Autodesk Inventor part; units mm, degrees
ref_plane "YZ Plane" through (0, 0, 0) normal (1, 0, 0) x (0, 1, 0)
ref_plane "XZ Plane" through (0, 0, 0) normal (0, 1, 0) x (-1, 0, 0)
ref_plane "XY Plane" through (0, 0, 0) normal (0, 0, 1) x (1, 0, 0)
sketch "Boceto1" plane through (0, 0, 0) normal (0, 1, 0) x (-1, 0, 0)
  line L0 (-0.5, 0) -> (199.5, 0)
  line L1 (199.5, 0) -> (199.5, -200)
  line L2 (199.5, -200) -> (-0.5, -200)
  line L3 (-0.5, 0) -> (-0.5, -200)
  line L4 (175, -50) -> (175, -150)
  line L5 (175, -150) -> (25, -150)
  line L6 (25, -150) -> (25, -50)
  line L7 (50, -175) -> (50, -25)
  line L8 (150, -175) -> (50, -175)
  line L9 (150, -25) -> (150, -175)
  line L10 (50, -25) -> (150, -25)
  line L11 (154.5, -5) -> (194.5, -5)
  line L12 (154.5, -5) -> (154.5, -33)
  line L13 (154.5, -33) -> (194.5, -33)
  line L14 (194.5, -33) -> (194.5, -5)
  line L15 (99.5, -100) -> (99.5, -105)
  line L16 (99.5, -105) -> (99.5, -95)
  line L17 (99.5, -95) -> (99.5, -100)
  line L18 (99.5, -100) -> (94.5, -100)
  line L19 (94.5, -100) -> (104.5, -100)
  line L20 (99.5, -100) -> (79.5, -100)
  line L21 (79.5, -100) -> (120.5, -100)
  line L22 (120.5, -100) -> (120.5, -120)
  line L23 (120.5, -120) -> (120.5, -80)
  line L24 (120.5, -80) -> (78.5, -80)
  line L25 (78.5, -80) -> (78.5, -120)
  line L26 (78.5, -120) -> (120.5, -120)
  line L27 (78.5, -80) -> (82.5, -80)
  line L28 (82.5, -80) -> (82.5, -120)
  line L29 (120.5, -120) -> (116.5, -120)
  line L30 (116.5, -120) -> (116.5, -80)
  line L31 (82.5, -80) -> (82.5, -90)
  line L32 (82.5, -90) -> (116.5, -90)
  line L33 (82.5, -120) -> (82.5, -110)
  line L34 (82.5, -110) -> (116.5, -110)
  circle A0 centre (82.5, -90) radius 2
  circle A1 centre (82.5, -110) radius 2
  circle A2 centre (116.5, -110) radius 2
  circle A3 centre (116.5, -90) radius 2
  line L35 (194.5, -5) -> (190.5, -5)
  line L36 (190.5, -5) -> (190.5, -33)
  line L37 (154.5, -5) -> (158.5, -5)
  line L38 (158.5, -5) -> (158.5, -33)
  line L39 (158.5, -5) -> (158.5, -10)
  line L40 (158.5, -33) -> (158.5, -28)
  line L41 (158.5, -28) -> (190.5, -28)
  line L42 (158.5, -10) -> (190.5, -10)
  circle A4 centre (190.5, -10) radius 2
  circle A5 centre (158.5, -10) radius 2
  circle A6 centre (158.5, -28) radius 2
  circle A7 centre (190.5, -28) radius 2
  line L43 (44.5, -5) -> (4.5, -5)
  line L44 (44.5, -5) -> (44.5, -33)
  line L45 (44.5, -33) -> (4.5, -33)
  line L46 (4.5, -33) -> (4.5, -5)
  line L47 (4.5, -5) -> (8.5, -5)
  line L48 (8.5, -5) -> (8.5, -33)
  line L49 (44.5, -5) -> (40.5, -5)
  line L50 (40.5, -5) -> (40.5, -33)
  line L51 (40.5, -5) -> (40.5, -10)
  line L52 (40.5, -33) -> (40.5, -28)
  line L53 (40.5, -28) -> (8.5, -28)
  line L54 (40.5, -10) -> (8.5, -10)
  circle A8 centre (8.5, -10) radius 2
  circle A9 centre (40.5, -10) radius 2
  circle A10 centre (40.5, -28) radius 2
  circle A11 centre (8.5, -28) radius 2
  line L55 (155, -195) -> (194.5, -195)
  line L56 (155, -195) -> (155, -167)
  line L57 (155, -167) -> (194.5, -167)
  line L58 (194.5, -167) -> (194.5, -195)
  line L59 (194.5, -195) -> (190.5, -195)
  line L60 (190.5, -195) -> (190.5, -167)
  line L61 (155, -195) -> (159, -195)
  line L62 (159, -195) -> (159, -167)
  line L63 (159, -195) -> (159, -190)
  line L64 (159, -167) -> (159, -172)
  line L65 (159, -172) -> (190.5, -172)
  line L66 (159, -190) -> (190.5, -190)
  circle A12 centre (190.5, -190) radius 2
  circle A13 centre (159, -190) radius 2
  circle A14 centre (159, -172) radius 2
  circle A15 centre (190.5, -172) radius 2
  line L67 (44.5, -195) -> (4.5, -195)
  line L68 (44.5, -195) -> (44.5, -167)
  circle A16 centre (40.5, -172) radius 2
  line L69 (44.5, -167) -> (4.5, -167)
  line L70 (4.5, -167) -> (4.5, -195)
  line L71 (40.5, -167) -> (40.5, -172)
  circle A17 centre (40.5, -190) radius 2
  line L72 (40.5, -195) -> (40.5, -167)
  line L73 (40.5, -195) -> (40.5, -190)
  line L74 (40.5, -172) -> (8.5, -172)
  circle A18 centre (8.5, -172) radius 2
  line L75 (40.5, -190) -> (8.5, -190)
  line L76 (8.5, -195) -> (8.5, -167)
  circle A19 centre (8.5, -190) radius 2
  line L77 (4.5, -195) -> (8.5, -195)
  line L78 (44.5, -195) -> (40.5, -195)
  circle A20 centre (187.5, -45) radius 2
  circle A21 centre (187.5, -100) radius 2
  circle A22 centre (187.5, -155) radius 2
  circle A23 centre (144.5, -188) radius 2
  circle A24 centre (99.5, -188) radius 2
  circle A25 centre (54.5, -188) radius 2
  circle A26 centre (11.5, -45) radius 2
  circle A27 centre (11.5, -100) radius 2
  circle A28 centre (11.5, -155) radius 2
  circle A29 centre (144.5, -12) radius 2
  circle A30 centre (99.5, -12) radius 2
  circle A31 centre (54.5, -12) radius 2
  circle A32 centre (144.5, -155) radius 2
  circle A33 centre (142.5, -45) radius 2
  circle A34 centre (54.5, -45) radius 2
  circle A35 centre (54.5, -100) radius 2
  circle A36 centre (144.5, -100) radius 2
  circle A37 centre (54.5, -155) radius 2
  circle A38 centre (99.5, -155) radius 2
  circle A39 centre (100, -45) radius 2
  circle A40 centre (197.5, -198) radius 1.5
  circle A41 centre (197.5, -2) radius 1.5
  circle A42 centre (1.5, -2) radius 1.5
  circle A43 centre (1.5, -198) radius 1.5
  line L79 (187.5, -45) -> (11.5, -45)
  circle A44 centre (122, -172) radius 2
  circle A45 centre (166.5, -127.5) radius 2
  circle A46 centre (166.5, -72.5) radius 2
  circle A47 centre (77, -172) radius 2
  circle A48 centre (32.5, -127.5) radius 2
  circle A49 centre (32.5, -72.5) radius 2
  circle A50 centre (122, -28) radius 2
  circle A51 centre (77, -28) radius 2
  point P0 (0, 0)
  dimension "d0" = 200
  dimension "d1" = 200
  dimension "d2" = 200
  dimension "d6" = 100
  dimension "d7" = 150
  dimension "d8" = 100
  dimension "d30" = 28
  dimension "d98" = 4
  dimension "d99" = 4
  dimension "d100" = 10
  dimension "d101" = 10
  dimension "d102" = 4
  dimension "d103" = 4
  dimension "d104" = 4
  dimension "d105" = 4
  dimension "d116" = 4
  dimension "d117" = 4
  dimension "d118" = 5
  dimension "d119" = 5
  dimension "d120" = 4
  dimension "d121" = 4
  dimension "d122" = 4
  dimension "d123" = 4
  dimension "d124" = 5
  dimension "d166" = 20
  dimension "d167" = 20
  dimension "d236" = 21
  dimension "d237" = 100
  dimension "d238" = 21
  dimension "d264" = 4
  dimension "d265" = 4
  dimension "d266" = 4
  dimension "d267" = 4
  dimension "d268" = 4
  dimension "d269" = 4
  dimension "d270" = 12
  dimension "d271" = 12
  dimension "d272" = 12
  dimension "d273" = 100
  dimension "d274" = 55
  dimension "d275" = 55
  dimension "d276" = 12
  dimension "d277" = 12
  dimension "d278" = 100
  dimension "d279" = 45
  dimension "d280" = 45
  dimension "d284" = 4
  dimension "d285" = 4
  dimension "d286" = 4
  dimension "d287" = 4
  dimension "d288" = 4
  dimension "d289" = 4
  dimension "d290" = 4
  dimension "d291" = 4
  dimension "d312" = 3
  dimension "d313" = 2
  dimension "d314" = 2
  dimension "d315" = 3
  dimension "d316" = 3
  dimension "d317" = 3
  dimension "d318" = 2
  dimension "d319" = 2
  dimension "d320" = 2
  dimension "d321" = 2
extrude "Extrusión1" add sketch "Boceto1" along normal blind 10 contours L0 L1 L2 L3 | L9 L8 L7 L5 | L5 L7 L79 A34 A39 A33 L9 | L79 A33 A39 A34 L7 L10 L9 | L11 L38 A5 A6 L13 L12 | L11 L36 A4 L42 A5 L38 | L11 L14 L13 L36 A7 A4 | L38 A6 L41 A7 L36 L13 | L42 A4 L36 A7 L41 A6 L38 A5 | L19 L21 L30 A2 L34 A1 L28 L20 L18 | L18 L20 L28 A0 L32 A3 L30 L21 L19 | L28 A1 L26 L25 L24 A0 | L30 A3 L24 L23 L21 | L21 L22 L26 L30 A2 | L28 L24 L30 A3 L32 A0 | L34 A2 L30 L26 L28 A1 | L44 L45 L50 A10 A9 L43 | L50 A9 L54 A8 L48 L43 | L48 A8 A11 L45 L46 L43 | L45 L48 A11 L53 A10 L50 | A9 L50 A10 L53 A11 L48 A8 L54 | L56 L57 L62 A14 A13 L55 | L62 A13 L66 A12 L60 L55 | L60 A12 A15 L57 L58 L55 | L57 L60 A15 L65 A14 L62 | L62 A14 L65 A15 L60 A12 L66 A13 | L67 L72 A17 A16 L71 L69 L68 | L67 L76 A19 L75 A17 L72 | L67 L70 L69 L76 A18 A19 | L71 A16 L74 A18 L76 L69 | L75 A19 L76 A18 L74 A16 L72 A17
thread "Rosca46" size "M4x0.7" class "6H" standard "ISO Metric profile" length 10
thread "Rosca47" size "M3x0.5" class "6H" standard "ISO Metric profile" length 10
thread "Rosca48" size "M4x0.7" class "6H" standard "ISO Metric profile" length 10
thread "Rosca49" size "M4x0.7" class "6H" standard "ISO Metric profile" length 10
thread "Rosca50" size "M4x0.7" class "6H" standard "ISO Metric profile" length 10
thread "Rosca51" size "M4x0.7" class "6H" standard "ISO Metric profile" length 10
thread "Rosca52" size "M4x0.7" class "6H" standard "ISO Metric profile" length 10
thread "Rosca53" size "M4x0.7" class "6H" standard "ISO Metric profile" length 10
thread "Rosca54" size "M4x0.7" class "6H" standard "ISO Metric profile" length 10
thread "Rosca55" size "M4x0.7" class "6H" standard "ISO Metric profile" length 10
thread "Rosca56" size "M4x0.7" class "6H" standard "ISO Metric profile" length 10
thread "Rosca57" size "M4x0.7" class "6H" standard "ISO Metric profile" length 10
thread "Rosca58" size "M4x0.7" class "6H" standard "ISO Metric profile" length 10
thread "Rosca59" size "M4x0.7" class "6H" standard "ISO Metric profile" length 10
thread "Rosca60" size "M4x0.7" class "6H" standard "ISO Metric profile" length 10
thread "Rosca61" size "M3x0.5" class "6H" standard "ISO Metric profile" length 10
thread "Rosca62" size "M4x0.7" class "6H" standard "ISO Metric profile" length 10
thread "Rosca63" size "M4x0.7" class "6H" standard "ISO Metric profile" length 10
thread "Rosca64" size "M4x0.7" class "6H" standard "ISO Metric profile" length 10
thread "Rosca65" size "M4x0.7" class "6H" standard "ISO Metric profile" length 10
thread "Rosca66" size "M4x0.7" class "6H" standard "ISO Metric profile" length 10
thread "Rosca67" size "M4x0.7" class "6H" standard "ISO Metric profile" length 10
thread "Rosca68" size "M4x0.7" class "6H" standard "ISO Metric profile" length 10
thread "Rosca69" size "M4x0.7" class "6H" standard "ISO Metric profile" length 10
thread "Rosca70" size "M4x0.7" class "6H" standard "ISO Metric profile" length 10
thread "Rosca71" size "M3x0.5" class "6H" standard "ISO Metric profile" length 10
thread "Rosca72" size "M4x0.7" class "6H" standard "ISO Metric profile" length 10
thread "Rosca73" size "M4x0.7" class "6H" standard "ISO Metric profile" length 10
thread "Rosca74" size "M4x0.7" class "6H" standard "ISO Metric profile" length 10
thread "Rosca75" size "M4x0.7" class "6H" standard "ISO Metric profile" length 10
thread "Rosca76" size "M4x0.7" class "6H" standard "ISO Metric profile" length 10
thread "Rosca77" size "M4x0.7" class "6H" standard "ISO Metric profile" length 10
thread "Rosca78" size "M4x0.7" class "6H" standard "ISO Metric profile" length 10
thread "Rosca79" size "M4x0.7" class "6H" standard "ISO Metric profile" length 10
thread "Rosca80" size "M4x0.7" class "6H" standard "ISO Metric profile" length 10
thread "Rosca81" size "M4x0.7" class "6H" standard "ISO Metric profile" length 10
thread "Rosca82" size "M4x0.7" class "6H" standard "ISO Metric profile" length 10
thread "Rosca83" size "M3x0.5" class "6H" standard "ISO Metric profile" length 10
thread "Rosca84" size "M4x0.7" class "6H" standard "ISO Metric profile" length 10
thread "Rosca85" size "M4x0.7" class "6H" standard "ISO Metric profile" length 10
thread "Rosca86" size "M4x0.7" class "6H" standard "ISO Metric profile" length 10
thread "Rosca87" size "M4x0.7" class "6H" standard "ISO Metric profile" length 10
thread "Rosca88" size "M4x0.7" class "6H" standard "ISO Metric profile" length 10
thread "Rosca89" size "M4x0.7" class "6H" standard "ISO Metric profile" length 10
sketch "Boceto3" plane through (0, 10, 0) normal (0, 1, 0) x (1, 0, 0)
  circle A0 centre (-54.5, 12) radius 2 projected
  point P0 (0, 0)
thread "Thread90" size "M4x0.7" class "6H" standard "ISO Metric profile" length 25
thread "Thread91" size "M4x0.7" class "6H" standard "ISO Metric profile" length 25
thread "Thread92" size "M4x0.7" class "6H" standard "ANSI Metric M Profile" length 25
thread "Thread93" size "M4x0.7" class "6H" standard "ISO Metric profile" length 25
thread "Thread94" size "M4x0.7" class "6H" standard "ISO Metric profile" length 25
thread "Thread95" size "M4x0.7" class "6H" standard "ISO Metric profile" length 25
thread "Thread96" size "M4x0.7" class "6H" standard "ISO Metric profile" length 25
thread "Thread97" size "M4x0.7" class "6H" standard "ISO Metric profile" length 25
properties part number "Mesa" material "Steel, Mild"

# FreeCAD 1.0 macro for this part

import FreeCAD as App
import Part
import Sketcher
from FreeCAD import Vector


def add_polygon(sketch, points):
    """Adds a closed chain of lines whose ends are joined by coincident constraints."""
    first, n = sketch.GeometryCount, len(points)
    for a, b in zip(points, points[1:] + points[:1]):
        sketch.addGeometry(Part.LineSegment(App.Vector(*a, 0), App.Vector(*b, 0)), False)
    for i in range(n):
        sketch.addConstraint(Sketcher.Constraint("Coincident", first + i, 2, first + (i + 1) % n, 1))

doc = App.newDocument("Part")
body = doc.addObject("PartDesign::Body", "Body")

# Sketch on XZ plane
sketch1 = body.newObject("Sketcher::SketchObject", "Sketch")
sketch1.AttachmentSupport = (doc.getObject("XZ_Plane"), [""])
sketch1.MapMode = "FlatFace"
add_polygon(sketch1, [(-199.5, 0), (0.5, 0), (0.5, -200), (-199.5, -200)])  # lines 0-3
sketch1.addGeometry(Part.Circle(Vector(-1.5, -198, 0), Vector(0, 0, 1), 1.5), False)  # 4
sketch1.addGeometry(Part.Circle(Vector(-11.5, -155, 0), Vector(0, 0, 1), 2), False)  # 5
sketch1.addGeometry(Part.Circle(Vector(-54.5, -188, 0), Vector(0, 0, 1), 2), False)  # 6
sketch1.addGeometry(Part.Circle(Vector(-32.5, -127.5, 0), Vector(0, 0, 1), 2), False)  # 7
sketch1.addGeometry(Part.Circle(Vector(-99.5, -188, 0), Vector(0, 0, 1), 2), False)  # 8
sketch1.addGeometry(Part.Circle(Vector(-144.5, -188, 0), Vector(0, 0, 1), 2), False)  # 9
sketch1.addGeometry(Part.Circle(Vector(-197.5, -198, 0), Vector(0, 0, 1), 1.5), False)  # 10
sketch1.addGeometry(Part.Circle(Vector(-187.5, -155, 0), Vector(0, 0, 1), 2), False)  # 11
sketch1.addGeometry(Part.Circle(Vector(-166.5, -127.5, 0), Vector(0, 0, 1), 2), False)  # 12
sketch1.addGeometry(Part.Circle(Vector(-11.5, -100, 0), Vector(0, 0, 1), 2), False)  # 13
sketch1.addGeometry(Part.Circle(Vector(-32.5, -72.5, 0), Vector(0, 0, 1), 2), False)  # 14
sketch1.addGeometry(Part.Circle(Vector(-11.5, -45, 0), Vector(0, 0, 1), 2), False)  # 15
sketch1.addGeometry(Part.Circle(Vector(-1.5, -2, 0), Vector(0, 0, 1), 1.5), False)  # 16
sketch1.addGeometry(Part.Circle(Vector(-54.5, -12, 0), Vector(0, 0, 1), 2), False)  # 17
sketch1.addGeometry(Part.Circle(Vector(-187.5, -100, 0), Vector(0, 0, 1), 2), False)  # 18
sketch1.addGeometry(Part.Circle(Vector(-166.5, -72.5, 0), Vector(0, 0, 1), 2), False)  # 19
sketch1.addGeometry(Part.Circle(Vector(-99.5, -12, 0), Vector(0, 0, 1), 2), False)  # 20
sketch1.addGeometry(Part.Circle(Vector(-144.5, -12, 0), Vector(0, 0, 1), 2), False)  # 21
sketch1.addGeometry(Part.Circle(Vector(-187.5, -45, 0), Vector(0, 0, 1), 2), False)  # 22
sketch1.addGeometry(Part.Circle(Vector(-197.5, -2, 0), Vector(0, 0, 1), 1.5), False)  # 23
sketch1.addGeometry(Part.Circle(Vector(-40.5, -190, 0), Vector(0, 0, 1), 2), False)  # 24
sketch1.addGeometry(Part.Circle(Vector(-40.5, -172, 0), Vector(0, 0, 1), 2), False)  # 25
sketch1.addGeometry(Part.Circle(Vector(-8.5, -172, 0), Vector(0, 0, 1), 2), False)  # 26
sketch1.addGeometry(Part.Circle(Vector(-8.5, -190, 0), Vector(0, 0, 1), 2), False)  # 27
sketch1.addGeometry(Part.Circle(Vector(-159, -190, 0), Vector(0, 0, 1), 2), False)  # 28
sketch1.addGeometry(Part.Circle(Vector(-159, -172, 0), Vector(0, 0, 1), 2), False)  # 29
sketch1.addGeometry(Part.Circle(Vector(-190.5, -190, 0), Vector(0, 0, 1), 2), False)  # 30
sketch1.addGeometry(Part.Circle(Vector(-190.5, -172, 0), Vector(0, 0, 1), 2), False)  # 31
sketch1.addGeometry(Part.Circle(Vector(-40.5, -10, 0), Vector(0, 0, 1), 2), False)  # 32
sketch1.addGeometry(Part.Circle(Vector(-40.5, -28, 0), Vector(0, 0, 1), 2), False)  # 33
sketch1.addGeometry(Part.Circle(Vector(-8.5, -10, 0), Vector(0, 0, 1), 2), False)  # 34
sketch1.addGeometry(Part.Circle(Vector(-8.5, -28, 0), Vector(0, 0, 1), 2), False)  # 35
sketch1.addGeometry(Part.Circle(Vector(-54.5, -45, 0), Vector(0, 0, 1), 2), False)  # 36
sketch1.addGeometry(Part.Circle(Vector(-100, -45, 0), Vector(0, 0, 1), 2), False)  # 37
sketch1.addGeometry(Part.Circle(Vector(-142.5, -45, 0), Vector(0, 0, 1), 2), False)  # 38
sketch1.addGeometry(Part.Circle(Vector(-144.5, -100, 0), Vector(0, 0, 1), 2), False)  # 39
sketch1.addGeometry(Part.Circle(Vector(-54.5, -100, 0), Vector(0, 0, 1), 2), False)  # 40
sketch1.addGeometry(Part.Circle(Vector(-77, -28, 0), Vector(0, 0, 1), 2), False)  # 41
sketch1.addGeometry(Part.Circle(Vector(-122, -28, 0), Vector(0, 0, 1), 2), False)  # 42
sketch1.addGeometry(Part.Circle(Vector(-122, -172, 0), Vector(0, 0, 1), 2), False)  # 43
sketch1.addGeometry(Part.Circle(Vector(-99.5, -155, 0), Vector(0, 0, 1), 2), False)  # 44
sketch1.addGeometry(Part.Circle(Vector(-144.5, -155, 0), Vector(0, 0, 1), 2), False)  # 45
sketch1.addGeometry(Part.Circle(Vector(-77, -172, 0), Vector(0, 0, 1), 2), False)  # 46
sketch1.addGeometry(Part.Circle(Vector(-54.5, -155, 0), Vector(0, 0, 1), 2), False)  # 47
sketch1.addGeometry(Part.Circle(Vector(-158.5, -10, 0), Vector(0, 0, 1), 2), False)  # 48
sketch1.addGeometry(Part.Circle(Vector(-158.5, -28, 0), Vector(0, 0, 1), 2), False)  # 49
sketch1.addGeometry(Part.Circle(Vector(-190.5, -28, 0), Vector(0, 0, 1), 2), False)  # 50
sketch1.addGeometry(Part.Circle(Vector(-190.5, -10, 0), Vector(0, 0, 1), 2), False)  # 51
sketch1.addGeometry(Part.Circle(Vector(-116.5, -110, 0), Vector(0, 0, 1), 2), False)  # 52
sketch1.addGeometry(Part.Circle(Vector(-116.5, -90, 0), Vector(0, 0, 1), 2), False)  # 53
sketch1.addGeometry(Part.Circle(Vector(-82.5, -90, 0), Vector(0, 0, 1), 2), False)  # 54
sketch1.addGeometry(Part.Circle(Vector(-82.5, -110, 0), Vector(0, 0, 1), 2), False)  # 55
sketch1.addConstraint([
    Sketcher.Constraint("Horizontal", 0),
    Sketcher.Constraint("Vertical", 1),
    Sketcher.Constraint("Horizontal", 2),
    Sketcher.Constraint("Vertical", 3),
    Sketcher.Constraint("Equal", 5, 6),
    Sketcher.Constraint("Equal", 6, 7),
    Sketcher.Constraint("Equal", 7, 8),
    Sketcher.Constraint("Equal", 8, 9),
    Sketcher.Constraint("Equal", 4, 10),
    Sketcher.Constraint("Equal", 9, 11),
    Sketcher.Constraint("Equal", 11, 12),
    Sketcher.Constraint("Equal", 12, 13),
    Sketcher.Constraint("Equal", 13, 14),
    Sketcher.Constraint("Equal", 14, 15),
    Sketcher.Constraint("Equal", 10, 16),
    Sketcher.Constraint("Equal", 15, 17),
    Sketcher.Constraint("Equal", 17, 18),
    Sketcher.Constraint("Equal", 18, 19),
    Sketcher.Constraint("Equal", 19, 20),
    Sketcher.Constraint("Equal", 20, 21),
    Sketcher.Constraint("Equal", 21, 22),
    Sketcher.Constraint("Equal", 16, 23),
    Sketcher.Constraint("Equal", 22, 24),
    Sketcher.Constraint("Equal", 24, 25),
    Sketcher.Constraint("Equal", 25, 26),
    Sketcher.Constraint("Equal", 26, 27),
    Sketcher.Constraint("Equal", 27, 28),
    Sketcher.Constraint("Equal", 28, 29),
    Sketcher.Constraint("Equal", 29, 30),
    Sketcher.Constraint("Equal", 30, 31),
    Sketcher.Constraint("Equal", 31, 32),
    Sketcher.Constraint("Equal", 32, 33),
    Sketcher.Constraint("Equal", 33, 34),
    Sketcher.Constraint("Equal", 34, 35),
    Sketcher.Constraint("Equal", 35, 36),
    Sketcher.Constraint("Equal", 36, 37),
    Sketcher.Constraint("Equal", 37, 38),
    Sketcher.Constraint("Equal", 38, 39),
    Sketcher.Constraint("Equal", 39, 40),
    Sketcher.Constraint("Equal", 40, 41),
    Sketcher.Constraint("Equal", 41, 42),
    Sketcher.Constraint("Equal", 42, 43),
    Sketcher.Constraint("Equal", 43, 44),
    Sketcher.Constraint("Equal", 44, 45),
    Sketcher.Constraint("Equal", 45, 46),
    Sketcher.Constraint("Equal", 46, 47),
    Sketcher.Constraint("Equal", 47, 48),
    Sketcher.Constraint("Equal", 48, 49),
    Sketcher.Constraint("Equal", 49, 50),
    Sketcher.Constraint("Equal", 50, 51),
    Sketcher.Constraint("Equal", 51, 52),
    Sketcher.Constraint("Equal", 52, 53),
    Sketcher.Constraint("Equal", 53, 54),
    Sketcher.Constraint("Equal", 54, 55),
    Sketcher.Constraint("PointOnObject", 0, 2, -1),
    Sketcher.Constraint("Horizontal", 6, 3, 8, 3),
    Sketcher.Constraint("Horizontal", 8, 3, 9, 3),
    Sketcher.Constraint("Horizontal", 4, 3, 10, 3),
    Sketcher.Constraint("Horizontal", 5, 3, 11, 3),
    Sketcher.Constraint("Horizontal", 7, 3, 12, 3),
    Sketcher.Constraint("Horizontal", 13, 3, 18, 3),
    Sketcher.Constraint("Horizontal", 14, 3, 19, 3),
    Sketcher.Constraint("Horizontal", 17, 3, 20, 3),
    Sketcher.Constraint("Horizontal", 20, 3, 21, 3),
    Sketcher.Constraint("Horizontal", 15, 3, 22, 3),
    Sketcher.Constraint("Horizontal", 16, 3, 23, 3),
    Sketcher.Constraint("Horizontal", 25, 3, 26, 3),
    Sketcher.Constraint("Horizontal", 24, 3, 27, 3),
    Sketcher.Constraint("Horizontal", 27, 3, 28, 3),
    Sketcher.Constraint("Horizontal", 26, 3, 29, 3),
    Sketcher.Constraint("Horizontal", 28, 3, 30, 3),
    Sketcher.Constraint("Horizontal", 29, 3, 31, 3),
    Sketcher.Constraint("Horizontal", 32, 3, 34, 3),
    Sketcher.Constraint("Horizontal", 33, 3, 35, 3),
    Sketcher.Constraint("Horizontal", 22, 3, 36, 3),
    Sketcher.Constraint("Horizontal", 36, 3, 37, 3),
    Sketcher.Constraint("Horizontal", 37, 3, 38, 3),
    Sketcher.Constraint("Horizontal", 18, 3, 39, 3),
    Sketcher.Constraint("Horizontal", 39, 3, 40, 3),
    Sketcher.Constraint("Horizontal", 35, 3, 41, 3),
    Sketcher.Constraint("Horizontal", 41, 3, 42, 3),
    Sketcher.Constraint("Horizontal", 31, 3, 43, 3),
    Sketcher.Constraint("Horizontal", 11, 3, 44, 3),
    Sketcher.Constraint("Horizontal", 44, 3, 45, 3),
    Sketcher.Constraint("Horizontal", 43, 3, 46, 3),
    Sketcher.Constraint("Horizontal", 45, 3, 47, 3),
    Sketcher.Constraint("Horizontal", 34, 3, 48, 3),
    Sketcher.Constraint("Horizontal", 42, 3, 49, 3),
    Sketcher.Constraint("Horizontal", 49, 3, 50, 3),
    Sketcher.Constraint("Horizontal", 48, 3, 51, 3),
    Sketcher.Constraint("Horizontal", 53, 3, 54, 3),
    Sketcher.Constraint("Horizontal", 52, 3, 55, 3),
    Sketcher.Constraint("Vertical", 5, 3, 13, 3),
    Sketcher.Constraint("Vertical", 7, 3, 14, 3),
    Sketcher.Constraint("Vertical", 13, 3, 15, 3),
    Sketcher.Constraint("Vertical", 4, 3, 16, 3),
    Sketcher.Constraint("Vertical", 6, 3, 17, 3),
    Sketcher.Constraint("Vertical", 11, 3, 18, 3),
    Sketcher.Constraint("Vertical", 12, 3, 19, 3),
    Sketcher.Constraint("Vertical", 8, 3, 20, 3),
    Sketcher.Constraint("Vertical", 9, 3, 21, 3),
    Sketcher.Constraint("Vertical", 18, 3, 22, 3),
    Sketcher.Constraint("Vertical", 10, 3, 23, 3),
    Sketcher.Constraint("Vertical", 24, 3, 25, 3),
    Sketcher.Constraint("Vertical", 26, 3, 27, 3),
    Sketcher.Constraint("Vertical", 28, 3, 29, 3),
    Sketcher.Constraint("Vertical", 30, 3, 31, 3),
    Sketcher.Constraint("Vertical", 25, 3, 32, 3),
    Sketcher.Constraint("Vertical", 32, 3, 33, 3),
    Sketcher.Constraint("Vertical", 27, 3, 34, 3),
    Sketcher.Constraint("Vertical", 34, 3, 35, 3),
    Sketcher.Constraint("Vertical", 17, 3, 36, 3),
    Sketcher.Constraint("Vertical", 21, 3, 39, 3),
    Sketcher.Constraint("Vertical", 36, 3, 40, 3),
    Sketcher.Constraint("Vertical", 42, 3, 43, 3),
    Sketcher.Constraint("Vertical", 20, 3, 44, 3),
    Sketcher.Constraint("Vertical", 39, 3, 45, 3),
    Sketcher.Constraint("Vertical", 41, 3, 46, 3),
    Sketcher.Constraint("Vertical", 40, 3, 47, 3),
    Sketcher.Constraint("Vertical", 48, 3, 49, 3),
    Sketcher.Constraint("Vertical", 31, 3, 50, 3),
    Sketcher.Constraint("Vertical", 50, 3, 51, 3),
    Sketcher.Constraint("Vertical", 52, 3, 53, 3),
    Sketcher.Constraint("Vertical", 54, 3, 55, 3),
    Sketcher.Constraint("Equal", 2, 1),
    Sketcher.Constraint("Diameter", 4, 3.0),
    Sketcher.Constraint("Diameter", 5, 4.0),
    Sketcher.Constraint("DistanceX", 0, 1, 0, 2, 200.0),
    Sketcher.Constraint("DistanceY", 13, 3, -1, 1, 100.0),
    Sketcher.Constraint("DistanceY", 15, 3, -1, 1, 45.0),
    Sketcher.Constraint("DistanceY", 16, 3, -1, 1, 2.0),
    Sketcher.Constraint("DistanceY", 17, 3, -1, 1, 12.0),
    Sketcher.Constraint("DistanceY", 32, 3, -1, 1, 10.0),
    Sketcher.Constraint("DistanceY", 33, 3, -1, 1, 28.0),
    Sketcher.Constraint("DistanceX", 37, 3, -1, 1, 100.0),
    Sketcher.Constraint("DistanceX", 5, 3, 4, 3, 10.0),
    Sketcher.Constraint("DistanceY", 4, 3, 6, 3, 10.0),
    Sketcher.Constraint("DistanceX", 7, 3, 5, 3, 21.0),
    Sketcher.Constraint("DistanceX", 8, 3, 6, 3, 45.0),
    Sketcher.Constraint("DistanceX", 9, 3, 8, 3, 45.0),
    Sketcher.Constraint("DistanceX", 10, 3, 11, 3, 10.0),
    Sketcher.Constraint("DistanceX", 11, 3, 12, 3, 21.0),
    Sketcher.Constraint("DistanceY", 5, 3, 13, 3, 55.0),
    Sketcher.Constraint("DistanceY", 7, 3, 14, 3, 55.0),
    Sketcher.Constraint("DistanceY", 24, 3, 6, 3, 2.0),
    Sketcher.Constraint("DistanceX", 5, 3, 26, 3, 3.0),
    Sketcher.Constraint("DistanceX", 30, 3, 11, 3, 3.0),
    Sketcher.Constraint("DistanceX", 21, 3, 38, 3, 2.0),
    Sketcher.Constraint("DistanceX", 22, 3, 38, 3, 45.0),
    Sketcher.Constraint("DistanceX", 42, 3, 41, 3, 45.0),
    Sketcher.Constraint("DistanceX", 39, 3, 52, 3, 28.0),
    Sketcher.Constraint("DistanceY", 52, 3, 39, 3, 10.0),
    Sketcher.Constraint("DistanceY", 52, 3, 53, 3, 20.0),
    Sketcher.Constraint("DistanceX", 54, 3, 40, 3, 28.0),
    Sketcher.Constraint("DistanceX", 16, 3, 0, 2, 2.0),
    Sketcher.Constraint("DistanceY", 1, 2, 4, 3, 2.0),
    Sketcher.Constraint("DistanceY", 1, 2, 26, 3, 28.0),
    Sketcher.Constraint("DistanceX", 2, 2, 10, 3, 2.0),
    Sketcher.Constraint("DistanceX", 28, 3, -1, 1, 159.0),
    Sketcher.Constraint("DistanceX", 41, 3, -1, 1, 77.0),
    Sketcher.Constraint("DistanceX", 6, 3, 24, 3, 14.0),
    Sketcher.Constraint("DistanceX", 48, 3, 21, 3, 14.0),
    Sketcher.Constraint("DistanceX", 4, 3, -1, 1, 1.5),
    Sketcher.Constraint("DistanceY", 7, 3, -1, 1, 127.5),
])
pad1 = body.newObject("PartDesign::Pad", "Pad")
pad1.Profile = sketch1
pad1.Length = 10
pad1.Reversed = True

doc.recompute()
